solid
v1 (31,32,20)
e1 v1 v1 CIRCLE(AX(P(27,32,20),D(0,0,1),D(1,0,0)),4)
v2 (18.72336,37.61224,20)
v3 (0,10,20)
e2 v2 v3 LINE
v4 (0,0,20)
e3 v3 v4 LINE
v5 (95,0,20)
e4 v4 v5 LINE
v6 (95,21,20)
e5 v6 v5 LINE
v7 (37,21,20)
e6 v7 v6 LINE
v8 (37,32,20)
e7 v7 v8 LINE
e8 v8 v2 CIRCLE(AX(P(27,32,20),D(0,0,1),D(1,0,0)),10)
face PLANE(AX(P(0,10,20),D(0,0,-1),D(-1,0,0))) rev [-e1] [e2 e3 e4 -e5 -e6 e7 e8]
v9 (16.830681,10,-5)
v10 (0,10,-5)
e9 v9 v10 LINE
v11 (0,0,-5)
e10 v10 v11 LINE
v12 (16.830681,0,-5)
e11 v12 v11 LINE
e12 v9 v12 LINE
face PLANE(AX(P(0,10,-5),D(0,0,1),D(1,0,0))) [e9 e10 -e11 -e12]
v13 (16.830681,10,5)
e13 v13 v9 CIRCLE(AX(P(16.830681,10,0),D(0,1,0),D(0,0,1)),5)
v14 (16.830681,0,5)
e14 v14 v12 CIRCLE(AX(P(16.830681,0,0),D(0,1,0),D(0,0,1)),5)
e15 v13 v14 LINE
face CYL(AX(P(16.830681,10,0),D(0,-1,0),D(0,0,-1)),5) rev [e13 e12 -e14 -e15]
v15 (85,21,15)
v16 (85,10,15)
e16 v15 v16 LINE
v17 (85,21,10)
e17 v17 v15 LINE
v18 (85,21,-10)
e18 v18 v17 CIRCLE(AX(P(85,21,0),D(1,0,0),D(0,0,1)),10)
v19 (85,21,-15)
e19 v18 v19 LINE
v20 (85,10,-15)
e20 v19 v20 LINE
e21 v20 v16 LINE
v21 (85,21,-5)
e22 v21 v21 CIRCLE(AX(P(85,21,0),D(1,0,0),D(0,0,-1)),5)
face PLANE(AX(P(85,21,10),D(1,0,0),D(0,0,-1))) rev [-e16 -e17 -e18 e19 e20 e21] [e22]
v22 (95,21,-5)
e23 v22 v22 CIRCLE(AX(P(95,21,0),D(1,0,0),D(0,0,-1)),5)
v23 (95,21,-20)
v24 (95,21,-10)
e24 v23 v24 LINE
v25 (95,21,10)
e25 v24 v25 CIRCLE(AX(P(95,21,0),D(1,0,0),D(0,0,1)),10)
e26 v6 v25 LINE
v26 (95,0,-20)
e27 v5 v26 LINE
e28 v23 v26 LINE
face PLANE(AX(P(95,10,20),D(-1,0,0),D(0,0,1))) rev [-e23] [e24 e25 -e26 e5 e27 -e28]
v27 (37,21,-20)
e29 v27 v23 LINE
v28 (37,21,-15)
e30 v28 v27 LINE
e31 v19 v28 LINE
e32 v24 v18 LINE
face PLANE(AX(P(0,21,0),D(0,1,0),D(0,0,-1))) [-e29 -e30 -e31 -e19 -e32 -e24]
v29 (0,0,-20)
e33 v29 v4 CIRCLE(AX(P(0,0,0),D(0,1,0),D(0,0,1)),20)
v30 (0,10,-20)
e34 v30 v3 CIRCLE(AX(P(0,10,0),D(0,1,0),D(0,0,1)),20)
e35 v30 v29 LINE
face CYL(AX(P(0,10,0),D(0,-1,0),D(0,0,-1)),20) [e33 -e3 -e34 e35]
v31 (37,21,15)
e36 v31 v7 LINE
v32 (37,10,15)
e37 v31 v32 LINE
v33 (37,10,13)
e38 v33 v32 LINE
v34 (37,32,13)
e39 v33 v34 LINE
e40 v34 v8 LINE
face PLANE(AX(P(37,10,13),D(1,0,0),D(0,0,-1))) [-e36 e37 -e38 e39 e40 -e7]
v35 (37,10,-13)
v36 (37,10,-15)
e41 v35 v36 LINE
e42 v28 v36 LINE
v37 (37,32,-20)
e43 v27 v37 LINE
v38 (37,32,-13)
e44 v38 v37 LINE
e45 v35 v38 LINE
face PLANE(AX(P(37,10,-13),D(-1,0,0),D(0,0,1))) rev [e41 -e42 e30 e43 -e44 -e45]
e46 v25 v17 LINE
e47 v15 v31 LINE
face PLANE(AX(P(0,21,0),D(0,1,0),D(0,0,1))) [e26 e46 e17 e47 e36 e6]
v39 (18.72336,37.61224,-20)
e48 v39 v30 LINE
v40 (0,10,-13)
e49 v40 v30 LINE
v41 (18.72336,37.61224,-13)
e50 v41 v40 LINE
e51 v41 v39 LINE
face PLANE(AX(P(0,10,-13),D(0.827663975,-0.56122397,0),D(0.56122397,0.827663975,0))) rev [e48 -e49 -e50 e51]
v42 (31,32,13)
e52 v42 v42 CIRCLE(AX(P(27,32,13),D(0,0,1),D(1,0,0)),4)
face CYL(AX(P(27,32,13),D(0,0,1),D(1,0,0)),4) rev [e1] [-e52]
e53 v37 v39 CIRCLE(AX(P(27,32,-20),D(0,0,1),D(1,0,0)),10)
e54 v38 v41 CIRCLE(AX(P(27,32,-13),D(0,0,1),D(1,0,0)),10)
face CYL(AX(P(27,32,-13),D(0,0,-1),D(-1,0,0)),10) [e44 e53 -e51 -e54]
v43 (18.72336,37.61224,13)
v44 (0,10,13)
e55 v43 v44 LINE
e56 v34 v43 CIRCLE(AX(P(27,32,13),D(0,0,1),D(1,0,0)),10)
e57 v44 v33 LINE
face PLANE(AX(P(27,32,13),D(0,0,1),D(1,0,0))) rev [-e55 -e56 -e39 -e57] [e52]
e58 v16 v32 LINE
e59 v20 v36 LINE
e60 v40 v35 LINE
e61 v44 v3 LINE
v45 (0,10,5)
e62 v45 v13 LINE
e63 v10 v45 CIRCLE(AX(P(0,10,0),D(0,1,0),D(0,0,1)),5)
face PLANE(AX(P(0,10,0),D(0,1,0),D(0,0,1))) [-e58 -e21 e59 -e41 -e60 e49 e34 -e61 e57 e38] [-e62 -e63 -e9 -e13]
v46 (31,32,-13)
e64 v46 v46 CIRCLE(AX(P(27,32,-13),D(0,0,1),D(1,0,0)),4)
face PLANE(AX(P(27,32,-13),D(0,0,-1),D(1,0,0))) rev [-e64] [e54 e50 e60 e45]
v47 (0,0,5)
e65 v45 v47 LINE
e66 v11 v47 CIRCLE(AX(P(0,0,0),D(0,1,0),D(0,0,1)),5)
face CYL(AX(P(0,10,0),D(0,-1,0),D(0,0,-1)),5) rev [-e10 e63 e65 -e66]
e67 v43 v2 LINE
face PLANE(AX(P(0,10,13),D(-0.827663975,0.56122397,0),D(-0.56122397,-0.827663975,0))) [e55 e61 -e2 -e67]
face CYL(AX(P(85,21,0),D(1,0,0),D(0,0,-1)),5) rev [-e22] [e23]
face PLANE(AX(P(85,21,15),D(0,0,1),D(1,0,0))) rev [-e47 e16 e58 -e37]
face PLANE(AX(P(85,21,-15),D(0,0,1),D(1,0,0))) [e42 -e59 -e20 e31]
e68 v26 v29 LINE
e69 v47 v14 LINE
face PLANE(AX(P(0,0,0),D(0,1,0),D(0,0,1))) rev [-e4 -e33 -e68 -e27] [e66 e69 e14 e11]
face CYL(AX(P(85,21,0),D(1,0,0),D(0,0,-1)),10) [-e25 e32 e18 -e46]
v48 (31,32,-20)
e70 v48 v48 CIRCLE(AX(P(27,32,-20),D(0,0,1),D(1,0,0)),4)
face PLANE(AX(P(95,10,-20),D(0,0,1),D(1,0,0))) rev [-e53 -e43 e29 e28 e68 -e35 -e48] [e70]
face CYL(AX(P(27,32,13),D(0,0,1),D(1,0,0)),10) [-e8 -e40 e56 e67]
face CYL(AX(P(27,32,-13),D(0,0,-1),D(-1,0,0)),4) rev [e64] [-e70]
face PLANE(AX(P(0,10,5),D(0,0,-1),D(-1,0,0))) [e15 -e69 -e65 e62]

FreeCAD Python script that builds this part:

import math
import FreeCAD as App
import Part
import Sketcher

V = App.Vector
Q = App.Units.Quantity


def add_polygon(sketch, points):
    """Adds a closed chain of lines whose ends are joined by coincident constraints."""
    first, n = sketch.GeometryCount, len(points)
    for a, b in zip(points, points[1:] + points[:1]):
        sketch.addGeometry(Part.LineSegment(App.Vector(*a, 0), App.Vector(*b, 0)), False)
    for i in range(n):
        sketch.addConstraint(Sketcher.Constraint("Coincident", first + i, 2, first + (i + 1) % n, 1))

doc = App.newDocument("Part")
body = doc.addObject("PartDesign::Body", "Body")

# Sketch on XZ plane
sketch1 = body.newObject("Sketcher::SketchObject", "Sketch")
sketch1.AttachmentSupport = (doc.getObject("XZ_Plane"), [""])
sketch1.MapMode = "FlatFace"
sketch1.addGeometry(Part.LineSegment(V(0, 20, 0), V(95, 20, 0)), False)
sketch1.addGeometry(Part.LineSegment(V(95, 20, 0), V(95, -20, 0)), False)
sketch1.addGeometry(Part.LineSegment(V(95, -20, 0), V(0, -20, 0)), False)
sketch1.addGeometry(Part.ArcOfCircle(Part.Circle(V(0, 0, 0), V(0, 0, 1), 20), math.radians(90), math.radians(270)), False)
sketch1.addGeometry(Part.LineSegment(V(17, 5, 0), V(0, 5, 0)), False)
sketch1.addGeometry(Part.ArcOfCircle(Part.Circle(V(0, 0, 0), V(0, 0, 1), 5), math.radians(90), math.radians(270)), False)
sketch1.addGeometry(Part.LineSegment(V(0, -5, 0), V(17, -5, 0)), False)
sketch1.addGeometry(Part.ArcOfCircle(Part.Circle(V(17, 0, 0), V(0, 0, 1), 5), math.radians(-90), math.radians(90)), False)
sketch1.addConstraint(Sketcher.Constraint("Coincident", 0, 2, 1, 1))
sketch1.addConstraint(Sketcher.Constraint("Coincident", 1, 2, 2, 1))
sketch1.addConstraint(Sketcher.Constraint("Tangent", 2, 2, 3, 2))
sketch1.addConstraint(Sketcher.Constraint("Tangent", 3, 1, 0, 1))
sketch1.addConstraint(Sketcher.Constraint("Tangent", 4, 2, 5, 1))
sketch1.addConstraint(Sketcher.Constraint("Tangent", 5, 2, 6, 1))
sketch1.addConstraint(Sketcher.Constraint("Tangent", 6, 2, 7, 1))
sketch1.addConstraint(Sketcher.Constraint("Tangent", 7, 2, 4, 1))
sketch1.addConstraint(Sketcher.Constraint("Horizontal", 0))
sketch1.addConstraint(Sketcher.Constraint("Vertical", 1))
sketch1.addConstraint(Sketcher.Constraint("Horizontal", 2))
sketch1.addConstraint(Sketcher.Constraint("Horizontal", 4))
sketch1.addConstraint(Sketcher.Constraint("Horizontal", 6))
sketch1.addConstraint(Sketcher.Constraint("Coincident", 3, 3, -1, 1))
sketch1.addConstraint(Sketcher.Constraint("Coincident", 5, 3, -1, 1))
sketch1.addConstraint(Sketcher.Constraint("Radius", 3, Q("20 mm")))
sketch1.addConstraint(Sketcher.Constraint("Radius", 5, Q("5 mm")))
sketch1.addConstraint(Sketcher.Constraint("DistanceX", 0, 1, 0, 2, Q("95 mm")))
sketch1.addConstraint(Sketcher.Constraint("DistanceX", 4, 2, 4, 1, Q("16.830681 mm")))
pad1 = body.newObject("PartDesign::Pad", "Pad")
pad1.Profile = sketch1
pad1.Length = 10
pad1.Reversed = True

# Sketch on XY plane
sketch2 = body.newObject("Sketcher::SketchObject", "Sketch001")
sketch2.AttachmentSupport = (doc.getObject("XY_Plane"), [""])
sketch2.MapMode = "FlatFace"
sketch2.AttachmentOffset = App.Placement(V(0, 0, 20), App.Rotation())
sketch2.addGeometry(Part.LineSegment(V(0, 10, 0), V(37, 10, 0)), False)
sketch2.addGeometry(Part.LineSegment(V(37, 10, 0), V(37, 32, 0)), False)
sketch2.addGeometry(Part.ArcOfCircle(Part.Circle(V(27, 32, 0), V(0, 0, 1), 10), math.radians(0), math.radians(146)), False)
sketch2.addGeometry(Part.LineSegment(V(18.7, 37.6, 0), V(0, 10, 0)), False)
sketch2.addGeometry(Part.Circle(V(27, 32, 0), V(0, 0, 1), 4), False)
sketch2.addConstraint(Sketcher.Constraint("Coincident", 0, 2, 1, 1))
sketch2.addConstraint(Sketcher.Constraint("Tangent", 1, 2, 2, 1))
sketch2.addConstraint(Sketcher.Constraint("Tangent", 2, 2, 3, 1))
sketch2.addConstraint(Sketcher.Constraint("Coincident", 3, 2, 0, 1))
sketch2.addConstraint(Sketcher.Constraint("Horizontal", 0))
sketch2.addConstraint(Sketcher.Constraint("Vertical", 1))
sketch2.addConstraint(Sketcher.Constraint("Coincident", 4, 3, 2, 3))
sketch2.addConstraint(Sketcher.Constraint("PointOnObject", 3, 2, -2))
sketch2.addConstraint(Sketcher.Constraint("Diameter", 4, Q("8 mm")))
sketch2.addConstraint(Sketcher.Constraint("Radius", 2, Q("10 mm")))
sketch2.addConstraint(Sketcher.Constraint("DistanceX", 0, 1, 0, 2, Q("37 mm")))
sketch2.addConstraint(Sketcher.Constraint("DistanceY", 1, 1, 1, 2, Q("22 mm")))
sketch2.addConstraint(Sketcher.Constraint("DistanceY", -1, 1, 2, 3, Q("32 mm")))
pad2 = body.newObject("PartDesign::Pad", "Pad001")
pad2.Profile = sketch2
pad2.Length = 7
pad2.Reversed = True
doc.recompute()

mirrored = body.newObject("PartDesign::Mirrored", "Mirrored")
mirrored.Originals = [pad2]
mirrored.MirrorPlane = (doc.getObject("XY_Plane"), [""])
body.Tip = mirrored

# Sketch on XZ plane
sketch3 = body.newObject("Sketcher::SketchObject", "Sketch002")
sketch3.AttachmentSupport = (doc.getObject("XZ_Plane"), [""])
sketch3.MapMode = "FlatFace"
sketch3.AttachmentOffset = App.Placement(V(0, 0, -10), App.Rotation())
add_polygon(sketch3, [(37, 20), (95, 20), (95, 10), (85, 10), (85, 15), (37, 15)])  # lines 0-5
sketch3.addConstraint(Sketcher.Constraint("Horizontal", 0))
sketch3.addConstraint(Sketcher.Constraint("Vertical", 1))
sketch3.addConstraint(Sketcher.Constraint("Horizontal", 2))
sketch3.addConstraint(Sketcher.Constraint("Vertical", 3))
sketch3.addConstraint(Sketcher.Constraint("Horizontal", 4))
sketch3.addConstraint(Sketcher.Constraint("Vertical", 5))
sketch3.addConstraint(Sketcher.Constraint("Equal", 2, 1))
sketch3.addConstraint(Sketcher.Constraint("Equal", 3, 5))
sketch3.addConstraint(Sketcher.Constraint("DistanceX", 0, 1, 0, 2, Q("58 mm")))
sketch3.addConstraint(Sketcher.Constraint("DistanceX", 2, 2, 2, 1, Q("10 mm")))
sketch3.addConstraint(Sketcher.Constraint("DistanceX", -1, 1, 0, 2, Q("95 mm")))
sketch3.addConstraint(Sketcher.Constraint("DistanceY", -1, 1, 0, 2, Q("20 mm")))
pad3 = body.newObject("PartDesign::Pad", "Pad002")
pad3.Profile = sketch3
pad3.Length = 11
pad3.Reversed = True
doc.recompute()

mirrored2 = body.newObject("PartDesign::Mirrored", "Mirrored001")
mirrored2.Originals = [pad3]
mirrored2.MirrorPlane = (doc.getObject("XY_Plane"), [""])
body.Tip = mirrored2

# Sketch on YZ plane
sketch4 = body.newObject("Sketcher::SketchObject", "Sketch003")
sketch4.AttachmentSupport = (doc.getObject("YZ_Plane"), [""])
sketch4.MapMode = "FlatFace"
sketch4.AttachmentOffset = App.Placement(V(0, 0, 95), App.Rotation())
sketch4.addGeometry(Part.LineSegment(V(10, 10, 0), V(10, -10, 0)), False)
sketch4.addGeometry(Part.LineSegment(V(10, -10, 0), V(21, -10, 0)), False)
sketch4.addGeometry(Part.ArcOfCircle(Part.Circle(V(21, 0, 0), V(0, 0, 1), 10), math.radians(-90), math.radians(90)), False)
sketch4.addGeometry(Part.LineSegment(V(21, 10, 0), V(10, 10, 0)), False)
sketch4.addGeometry(Part.Circle(V(21, 0, 0), V(0, 0, 1), 5), False)
sketch4.addConstraint(Sketcher.Constraint("Coincident", 0, 2, 1, 1))
sketch4.addConstraint(Sketcher.Constraint("Tangent", 1, 2, 2, 1))
sketch4.addConstraint(Sketcher.Constraint("Tangent", 2, 2, 3, 1))
sketch4.addConstraint(Sketcher.Constraint("Coincident", 3, 2, 0, 1))
sketch4.addConstraint(Sketcher.Constraint("Vertical", 0))
sketch4.addConstraint(Sketcher.Constraint("Horizontal", 1))
sketch4.addConstraint(Sketcher.Constraint("Horizontal", 3))
sketch4.addConstraint(Sketcher.Constraint("Coincident", 4, 3, 2, 3))
sketch4.addConstraint(Sketcher.Constraint("PointOnObject", 2, 3, -1))
sketch4.addConstraint(Sketcher.Constraint("Diameter", 4, Q("10 mm")))
sketch4.addConstraint(Sketcher.Constraint("Radius", 2, Q("10 mm")))
sketch4.addConstraint(Sketcher.Constraint("DistanceX", 1, 1, 1, 2, Q("11 mm")))
sketch4.addConstraint(Sketcher.Constraint("DistanceX", -1, 1, 2, 3, Q("21 mm")))
pad4 = body.newObject("PartDesign::Pad", "Pad003")
pad4.Profile = sketch4
pad4.Length = 10
pad4.Reversed = True

doc.recompute()
